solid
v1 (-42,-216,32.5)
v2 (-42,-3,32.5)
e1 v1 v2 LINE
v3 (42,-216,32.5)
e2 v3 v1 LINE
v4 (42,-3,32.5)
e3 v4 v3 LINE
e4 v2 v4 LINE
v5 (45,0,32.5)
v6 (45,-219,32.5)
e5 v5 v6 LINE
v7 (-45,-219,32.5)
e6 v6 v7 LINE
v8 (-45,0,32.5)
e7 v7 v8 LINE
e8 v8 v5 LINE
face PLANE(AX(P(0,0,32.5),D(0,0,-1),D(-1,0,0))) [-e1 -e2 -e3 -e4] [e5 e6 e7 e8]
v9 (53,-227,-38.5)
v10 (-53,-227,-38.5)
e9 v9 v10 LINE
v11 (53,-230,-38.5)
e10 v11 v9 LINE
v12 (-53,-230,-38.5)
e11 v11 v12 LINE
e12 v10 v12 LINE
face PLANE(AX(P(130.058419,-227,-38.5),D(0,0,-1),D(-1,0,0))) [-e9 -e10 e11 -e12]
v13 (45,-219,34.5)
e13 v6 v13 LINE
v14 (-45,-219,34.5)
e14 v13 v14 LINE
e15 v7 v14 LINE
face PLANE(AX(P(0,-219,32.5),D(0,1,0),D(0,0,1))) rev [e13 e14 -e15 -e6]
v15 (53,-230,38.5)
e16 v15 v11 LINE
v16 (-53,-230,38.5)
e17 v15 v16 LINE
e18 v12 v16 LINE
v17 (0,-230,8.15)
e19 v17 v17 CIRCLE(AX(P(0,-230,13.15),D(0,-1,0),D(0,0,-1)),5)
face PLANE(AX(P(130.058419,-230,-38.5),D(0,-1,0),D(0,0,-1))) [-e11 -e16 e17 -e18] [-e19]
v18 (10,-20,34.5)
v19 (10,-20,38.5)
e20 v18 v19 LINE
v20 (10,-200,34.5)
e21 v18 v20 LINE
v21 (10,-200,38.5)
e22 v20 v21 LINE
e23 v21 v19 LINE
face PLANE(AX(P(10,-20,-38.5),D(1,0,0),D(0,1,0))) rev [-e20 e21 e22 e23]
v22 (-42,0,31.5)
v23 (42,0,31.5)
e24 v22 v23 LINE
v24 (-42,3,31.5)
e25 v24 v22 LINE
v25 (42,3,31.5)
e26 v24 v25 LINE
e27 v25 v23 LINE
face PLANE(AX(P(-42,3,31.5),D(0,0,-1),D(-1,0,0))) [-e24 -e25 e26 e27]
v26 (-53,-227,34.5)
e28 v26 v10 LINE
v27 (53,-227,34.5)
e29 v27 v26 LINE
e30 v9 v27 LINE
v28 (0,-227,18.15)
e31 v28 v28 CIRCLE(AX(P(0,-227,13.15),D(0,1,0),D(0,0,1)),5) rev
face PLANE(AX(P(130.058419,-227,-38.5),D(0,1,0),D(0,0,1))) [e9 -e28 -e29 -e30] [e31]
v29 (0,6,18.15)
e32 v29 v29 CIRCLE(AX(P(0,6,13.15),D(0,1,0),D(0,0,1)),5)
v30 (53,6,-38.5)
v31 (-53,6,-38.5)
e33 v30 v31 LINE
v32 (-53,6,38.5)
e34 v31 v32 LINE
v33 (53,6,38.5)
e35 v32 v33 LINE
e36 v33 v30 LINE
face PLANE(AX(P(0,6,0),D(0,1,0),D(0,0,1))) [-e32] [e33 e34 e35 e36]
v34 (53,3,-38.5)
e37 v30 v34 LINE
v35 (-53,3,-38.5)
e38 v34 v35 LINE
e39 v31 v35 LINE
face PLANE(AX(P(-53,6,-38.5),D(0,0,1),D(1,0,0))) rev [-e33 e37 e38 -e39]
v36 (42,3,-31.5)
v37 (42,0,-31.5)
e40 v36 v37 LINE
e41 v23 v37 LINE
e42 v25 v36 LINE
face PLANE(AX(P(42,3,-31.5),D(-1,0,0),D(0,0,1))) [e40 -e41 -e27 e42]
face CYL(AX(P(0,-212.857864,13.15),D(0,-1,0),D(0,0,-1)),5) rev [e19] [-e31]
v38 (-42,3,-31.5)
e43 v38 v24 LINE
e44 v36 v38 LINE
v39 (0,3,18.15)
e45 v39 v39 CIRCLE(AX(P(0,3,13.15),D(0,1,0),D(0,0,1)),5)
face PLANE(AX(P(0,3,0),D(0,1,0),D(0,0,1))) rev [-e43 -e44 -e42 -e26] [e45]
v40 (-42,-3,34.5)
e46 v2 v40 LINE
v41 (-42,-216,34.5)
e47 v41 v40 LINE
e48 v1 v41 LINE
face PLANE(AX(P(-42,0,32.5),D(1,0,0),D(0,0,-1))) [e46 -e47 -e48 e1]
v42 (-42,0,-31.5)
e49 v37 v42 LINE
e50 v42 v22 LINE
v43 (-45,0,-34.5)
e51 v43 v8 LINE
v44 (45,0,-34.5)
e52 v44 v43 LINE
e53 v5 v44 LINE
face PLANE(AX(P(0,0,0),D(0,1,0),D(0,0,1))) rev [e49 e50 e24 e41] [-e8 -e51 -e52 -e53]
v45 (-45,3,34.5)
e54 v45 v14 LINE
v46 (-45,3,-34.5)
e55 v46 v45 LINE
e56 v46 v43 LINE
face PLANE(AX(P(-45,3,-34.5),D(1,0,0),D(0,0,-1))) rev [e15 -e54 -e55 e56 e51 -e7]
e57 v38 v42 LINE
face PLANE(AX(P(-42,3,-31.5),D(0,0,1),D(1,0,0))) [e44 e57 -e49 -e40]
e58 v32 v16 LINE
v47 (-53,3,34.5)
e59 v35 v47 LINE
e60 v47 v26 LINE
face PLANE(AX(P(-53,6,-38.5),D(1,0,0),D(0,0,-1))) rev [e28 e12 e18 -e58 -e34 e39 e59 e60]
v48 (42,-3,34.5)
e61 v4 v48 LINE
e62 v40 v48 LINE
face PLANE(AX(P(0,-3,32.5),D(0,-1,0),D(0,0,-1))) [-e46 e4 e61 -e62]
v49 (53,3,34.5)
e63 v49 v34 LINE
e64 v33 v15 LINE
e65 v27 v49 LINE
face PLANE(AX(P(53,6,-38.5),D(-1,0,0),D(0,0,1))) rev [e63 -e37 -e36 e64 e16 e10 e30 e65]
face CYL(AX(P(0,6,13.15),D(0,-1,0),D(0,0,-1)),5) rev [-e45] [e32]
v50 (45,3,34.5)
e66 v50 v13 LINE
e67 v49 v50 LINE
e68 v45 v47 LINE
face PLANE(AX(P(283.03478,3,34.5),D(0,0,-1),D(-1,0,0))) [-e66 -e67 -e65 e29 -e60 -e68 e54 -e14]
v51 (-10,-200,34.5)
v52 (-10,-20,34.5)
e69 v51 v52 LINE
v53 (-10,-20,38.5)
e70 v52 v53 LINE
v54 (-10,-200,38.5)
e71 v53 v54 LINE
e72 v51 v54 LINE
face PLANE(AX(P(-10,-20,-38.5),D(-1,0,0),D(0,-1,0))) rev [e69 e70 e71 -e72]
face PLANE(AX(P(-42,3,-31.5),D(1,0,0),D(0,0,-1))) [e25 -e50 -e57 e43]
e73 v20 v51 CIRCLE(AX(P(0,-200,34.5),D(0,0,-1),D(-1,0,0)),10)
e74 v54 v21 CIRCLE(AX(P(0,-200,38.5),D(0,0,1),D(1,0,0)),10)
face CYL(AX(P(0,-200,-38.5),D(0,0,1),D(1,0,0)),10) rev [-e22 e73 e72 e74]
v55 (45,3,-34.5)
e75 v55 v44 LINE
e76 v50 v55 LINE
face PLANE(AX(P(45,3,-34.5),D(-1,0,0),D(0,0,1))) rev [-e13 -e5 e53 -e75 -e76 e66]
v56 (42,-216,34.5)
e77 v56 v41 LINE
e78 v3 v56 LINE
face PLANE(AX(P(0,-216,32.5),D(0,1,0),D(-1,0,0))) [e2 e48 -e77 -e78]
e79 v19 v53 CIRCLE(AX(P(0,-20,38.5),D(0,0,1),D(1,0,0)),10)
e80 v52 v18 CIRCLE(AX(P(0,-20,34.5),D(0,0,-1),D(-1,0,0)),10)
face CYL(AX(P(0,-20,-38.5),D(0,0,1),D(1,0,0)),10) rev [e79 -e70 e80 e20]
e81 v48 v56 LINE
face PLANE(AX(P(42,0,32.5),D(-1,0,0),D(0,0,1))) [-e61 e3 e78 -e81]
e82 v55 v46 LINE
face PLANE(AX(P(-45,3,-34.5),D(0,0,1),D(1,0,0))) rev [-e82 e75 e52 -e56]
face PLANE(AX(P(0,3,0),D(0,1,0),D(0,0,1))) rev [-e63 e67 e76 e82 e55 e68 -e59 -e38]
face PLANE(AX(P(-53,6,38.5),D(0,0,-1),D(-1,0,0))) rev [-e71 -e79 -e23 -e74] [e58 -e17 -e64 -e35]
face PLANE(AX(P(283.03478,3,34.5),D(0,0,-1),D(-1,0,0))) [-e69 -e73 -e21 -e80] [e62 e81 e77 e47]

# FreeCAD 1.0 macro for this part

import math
import FreeCAD as App
import Part
import Sketcher
from FreeCAD import Vector

doc = App.newDocument("Part")
params = doc.addObject("Spreadsheet::Sheet", "Params")
for row, (alias, value) in enumerate([
    ("sketch1_width", "90 mm"),
    ("sketch1_width2", "84 mm"),
    ("sketch1_height", "69 mm"),
    ("sketch1_height2", "63 mm"),
    ("pad1_length", "3 mm"),
    ("sketch2_diameter", "10 mm"),
    ("sketch2_width", "106 mm"),
    ("sketch2_height", "77 mm"),
    ("pad2_length", "3 mm"),
    ("sketch3_width", "230 mm"),
    ("sketch3_height", "4 mm"),
    ("pad3_length", "106 mm"),
    ("sketch4_width", "90 mm"),
    ("sketch4_width2", "84 mm"),
    ("sketch4_height", "219 mm"),
    ("sketch4_height2", "213 mm"),
    ("pad4_length", "2 mm"),
    ("sketch5_width", "3 mm"),
    ("sketch5_height", "77 mm"),
    ("pad5_length", "106 mm"),
    ("sketch6_diameter", "10 mm"),
    ("pocket1_length", "3 mm"),
    ("sketch7_radius", "10 mm"),
    ("sketch7_height", "180 mm"),
], start=1):
    params.set(f"A{row}", alias)
    params.set(f"B{row}", "=" + value)
    params.setAlias(f"B{row}", alias)

body = doc.addObject("PartDesign::Body", "Body")

# Sketch on XZ plane
sketch1 = body.newObject("Sketcher::SketchObject", "Sketch")
sketch1.AttachmentSupport = (doc.getObject("XZ_Plane"), [""])
sketch1.MapMode = "FlatFace"
sketch1.addGeometry([
    Part.LineSegment(Vector(-45, -34.5, 0), Vector(-45, 34.5, 0)),  # 0
    Part.LineSegment(Vector(-45, 34.5, 0), Vector(45, 34.5, 0)),  # 1
    Part.LineSegment(Vector(45, 34.5, 0), Vector(45, -34.5, 0)),  # 2
    Part.LineSegment(Vector(45, -34.5, 0), Vector(-45, -34.5, 0)),  # 3
    Part.LineSegment(Vector(42, 31.5, 0), Vector(-42, 31.5, 0)),  # 4
    Part.LineSegment(Vector(-42, 31.5, 0), Vector(-42, -31.5, 0)),  # 5
    Part.LineSegment(Vector(-42, -31.5, 0), Vector(42, -31.5, 0)),  # 6
    Part.LineSegment(Vector(42, -31.5, 0), Vector(42, 31.5, 0)),  # 7
], False)
sketch1.addConstraint([
    Sketcher.Constraint("Coincident", 0, 2, 1, 1),
    Sketcher.Constraint("Coincident", 1, 2, 2, 1),
    Sketcher.Constraint("Coincident", 2, 2, 3, 1),
    Sketcher.Constraint("Coincident", 3, 2, 0, 1),
    Sketcher.Constraint("Coincident", 4, 2, 5, 1),
    Sketcher.Constraint("Coincident", 5, 2, 6, 1),
    Sketcher.Constraint("Coincident", 6, 2, 7, 1),
    Sketcher.Constraint("Coincident", 7, 2, 4, 1),
    Sketcher.Constraint("Vertical", 0),
    Sketcher.Constraint("Horizontal", 1),
    Sketcher.Constraint("Vertical", 2),
    Sketcher.Constraint("Horizontal", 3),
    Sketcher.Constraint("Horizontal", 4),
    Sketcher.Constraint("Vertical", 5),
    Sketcher.Constraint("Horizontal", 6),
    Sketcher.Constraint("Vertical", 7),
    Sketcher.Constraint("Symmetric", 0, 2, 2, 2, -1, 1),
    Sketcher.Constraint("Symmetric", 4, 2, 6, 2, -1, 1),
    Sketcher.Constraint("DistanceX", 1, 1, 1, 2, 90.0),
    Sketcher.Constraint("DistanceX", 4, 2, 4, 1, 84.0),
    Sketcher.Constraint("DistanceY", 0, 1, 0, 2, 69.0),
    Sketcher.Constraint("DistanceY", 5, 2, 5, 1, 63.0),
])
sketch1.setExpression("Constraints[18]", "Params.sketch1_width")
sketch1.setExpression("Constraints[19]", "Params.sketch1_width2")
sketch1.setExpression("Constraints[20]", "Params.sketch1_height")
sketch1.setExpression("Constraints[21]", "Params.sketch1_height2")
pad1 = body.newObject("PartDesign::Pad", "Pad")
pad1.Profile = sketch1
pad1.setExpression("Length", "Params.pad1_length")
pad1.Reversed = True

# Sketch on XZ plane
sketch2 = body.newObject("Sketcher::SketchObject", "Sketch001")
sketch2.AttachmentSupport = (doc.getObject("XZ_Plane"), [""])
sketch2.MapMode = "FlatFace"
sketch2.AttachmentOffset = App.Placement(Vector(0, 0, -3), App.Rotation())
sketch2.addGeometry([
    Part.LineSegment(Vector(-53, -38.5, 0), Vector(-53, 38.5, 0)),  # 0
    Part.LineSegment(Vector(-53, 38.5, 0), Vector(53, 38.5, 0)),  # 1
    Part.LineSegment(Vector(53, 38.5, 0), Vector(53, -38.5, 0)),  # 2
    Part.LineSegment(Vector(53, -38.5, 0), Vector(-53, -38.5, 0)),  # 3
    Part.Circle(Vector(0, 13.15, 0), Vector(0, 0, 1), 5),  # 4
], False)
sketch2.addConstraint([
    Sketcher.Constraint("Coincident", 0, 2, 1, 1),
    Sketcher.Constraint("Coincident", 1, 2, 2, 1),
    Sketcher.Constraint("Coincident", 2, 2, 3, 1),
    Sketcher.Constraint("Coincident", 3, 2, 0, 1),
    Sketcher.Constraint("Vertical", 0),
    Sketcher.Constraint("Horizontal", 1),
    Sketcher.Constraint("Vertical", 2),
    Sketcher.Constraint("Horizontal", 3),
    Sketcher.Constraint("Symmetric", 0, 2, 2, 2, -1, 1),
    Sketcher.Constraint("PointOnObject", 4, 3, -2),
    Sketcher.Constraint("Diameter", 4, 10.0),
    Sketcher.Constraint("DistanceX", 1, 1, 1, 2, 106.0),
    Sketcher.Constraint("DistanceY", 0, 1, 0, 2, 77.0),
    Sketcher.Constraint("DistanceY", -1, 1, 4, 3, 13.15),
])
sketch2.setExpression("Constraints[10]", "Params.sketch2_diameter")
sketch2.setExpression("Constraints[11]", "Params.sketch2_width")
sketch2.setExpression("Constraints[12]", "Params.sketch2_height")
pad2 = body.newObject("PartDesign::Pad", "Pad001")
pad2.Profile = sketch2
pad2.setExpression("Length", "Params.pad2_length")
pad2.Reversed = True

# Sketch on YZ plane
sketch3 = body.newObject("Sketcher::SketchObject", "Sketch002")
sketch3.AttachmentSupport = (doc.getObject("YZ_Plane"), [""])
sketch3.MapMode = "FlatFace"
sketch3.AttachmentOffset = App.Placement(Vector(0, 0, -53), App.Rotation())
sketch3.addGeometry([
    Part.LineSegment(Vector(3, 38.5, 0), Vector(3, 34.5, 0)),
    Part.LineSegment(Vector(3, 34.5, 0), Vector(-227, 34.5, 0)),
    Part.LineSegment(Vector(-227, 34.5, 0), Vector(-227, 38.5, 0)),
    Part.LineSegment(Vector(-227, 38.5, 0), Vector(3, 38.5, 0)),
], False)
sketch3.addConstraint([
    Sketcher.Constraint("Coincident", 0, 2, 1, 1),
    Sketcher.Constraint("Coincident", 1, 2, 2, 1),
    Sketcher.Constraint("Coincident", 2, 2, 3, 1),
    Sketcher.Constraint("Coincident", 3, 2, 0, 1),
    Sketcher.Constraint("Vertical", 0),
    Sketcher.Constraint("Horizontal", 1),
    Sketcher.Constraint("Vertical", 2),
    Sketcher.Constraint("Horizontal", 3),
    Sketcher.Constraint("DistanceX", 1, 2, 1, 1, 230.0),
    Sketcher.Constraint("DistanceY", 0, 2, 0, 1, 4.0),
    Sketcher.Constraint("DistanceX", -1, 1, 0, 2, 3.0),
    Sketcher.Constraint("DistanceY", -1, 1, 0, 2, 34.5),
])
sketch3.setExpression("Constraints[8]", "Params.sketch3_width")
sketch3.setExpression("Constraints[9]", "Params.sketch3_height")
pad3 = body.newObject("PartDesign::Pad", "Pad002")
pad3.Profile = sketch3
pad3.setExpression("Length", "Params.pad3_length")

# Sketch on XY plane
sketch4 = body.newObject("Sketcher::SketchObject", "Sketch003")
sketch4.AttachmentSupport = (doc.getObject("XY_Plane"), [""])
sketch4.MapMode = "FlatFace"
sketch4.AttachmentOffset = App.Placement(Vector(0, 0, 34.5), App.Rotation())
sketch4.addGeometry([
    Part.LineSegment(Vector(-45, -219, 0), Vector(-45, 0, 0)),  # 0
    Part.LineSegment(Vector(-45, 0, 0), Vector(45, 0, 0)),  # 1
    Part.LineSegment(Vector(45, 0, 0), Vector(45, -219, 0)),  # 2
    Part.LineSegment(Vector(45, -219, 0), Vector(-45, -219, 0)),  # 3
    Part.LineSegment(Vector(42, -3, 0), Vector(-42, -3, 0)),  # 4
    Part.LineSegment(Vector(-42, -3, 0), Vector(-42, -216, 0)),  # 5
    Part.LineSegment(Vector(-42, -216, 0), Vector(42, -216, 0)),  # 6
    Part.LineSegment(Vector(42, -216, 0), Vector(42, -3, 0)),  # 7
], False)
sketch4.addConstraint([
    Sketcher.Constraint("Coincident", 0, 2, 1, 1),
    Sketcher.Constraint("Coincident", 1, 2, 2, 1),
    Sketcher.Constraint("Coincident", 2, 2, 3, 1),
    Sketcher.Constraint("Coincident", 3, 2, 0, 1),
    Sketcher.Constraint("Coincident", 4, 2, 5, 1),
    Sketcher.Constraint("Coincident", 5, 2, 6, 1),
    Sketcher.Constraint("Coincident", 6, 2, 7, 1),
    Sketcher.Constraint("Coincident", 7, 2, 4, 1),
    Sketcher.Constraint("Vertical", 0),
    Sketcher.Constraint("Horizontal", 1),
    Sketcher.Constraint("Vertical", 2),
    Sketcher.Constraint("Horizontal", 3),
    Sketcher.Constraint("Horizontal", 4),
    Sketcher.Constraint("Vertical", 5),
    Sketcher.Constraint("Horizontal", 6),
    Sketcher.Constraint("Vertical", 7),
    Sketcher.Constraint("Symmetric", 0, 2, 1, 2, -1, 1),
    Sketcher.Constraint("DistanceX", 1, 1, 1, 2, 90.0),
    Sketcher.Constraint("DistanceX", 4, 2, 4, 1, 84.0),
    Sketcher.Constraint("DistanceY", 0, 1, 0, 2, 219.0),
    Sketcher.Constraint("DistanceY", 5, 2, 5, 1, 213.0),
    Sketcher.Constraint("DistanceX", 4, 2, -1, 1, 42.0),
    Sketcher.Constraint("DistanceY", 4, 2, -1, 1, 3.0),
])
sketch4.setExpression("Constraints[17]", "Params.sketch4_width")
sketch4.setExpression("Constraints[18]", "Params.sketch4_width2")
sketch4.setExpression("Constraints[19]", "Params.sketch4_height")
sketch4.setExpression("Constraints[20]", "Params.sketch4_height2")
pad4 = body.newObject("PartDesign::Pad", "Pad003")
pad4.Profile = sketch4
pad4.setExpression("Length", "Params.pad4_length")
pad4.Reversed = True

# Sketch on YZ plane
sketch5 = body.newObject("Sketcher::SketchObject", "Sketch004")
sketch5.AttachmentSupport = (doc.getObject("YZ_Plane"), [""])
sketch5.MapMode = "FlatFace"
sketch5.AttachmentOffset = App.Placement(Vector(0, 0, -53), App.Rotation())
sketch5.addGeometry([
    Part.LineSegment(Vector(-227, 38.5, 0), Vector(-227, -38.5, 0)),
    Part.LineSegment(Vector(-227, -38.5, 0), Vector(-230, -38.5, 0)),
    Part.LineSegment(Vector(-230, -38.5, 0), Vector(-230, 38.5, 0)),
    Part.LineSegment(Vector(-230, 38.5, 0), Vector(-227, 38.5, 0)),
], False)
sketch5.addConstraint([
    Sketcher.Constraint("Coincident", 0, 2, 1, 1),
    Sketcher.Constraint("Coincident", 1, 2, 2, 1),
    Sketcher.Constraint("Coincident", 2, 2, 3, 1),
    Sketcher.Constraint("Coincident", 3, 2, 0, 1),
    Sketcher.Constraint("Vertical", 0),
    Sketcher.Constraint("Horizontal", 1),
    Sketcher.Constraint("Vertical", 2),
    Sketcher.Constraint("Horizontal", 3),
    Sketcher.Constraint("DistanceX", 1, 2, 1, 1, 3.0),
    Sketcher.Constraint("DistanceY", 0, 2, 0, 1, 77.0),
    Sketcher.Constraint("DistanceX", 0, 2, -1, 1, 227.0),
    Sketcher.Constraint("DistanceY", 0, 2, -1, 1, 38.5),
])
sketch5.setExpression("Constraints[8]", "Params.sketch5_width")
sketch5.setExpression("Constraints[9]", "Params.sketch5_height")
pad5 = body.newObject("PartDesign::Pad", "Pad004")
pad5.Profile = sketch5
pad5.setExpression("Length", "Params.pad5_length")

# Sketch on XZ plane
sketch6 = body.newObject("Sketcher::SketchObject", "Sketch005")
sketch6.AttachmentSupport = (doc.getObject("XZ_Plane"), [""])
sketch6.MapMode = "FlatFace"
sketch6.AttachmentOffset = App.Placement(Vector(0, 0, 230), App.Rotation())
sketch6.addGeometry(Part.Circle(Vector(0, 13.15, 0), Vector(0, 0, 1), 5), False)
sketch6.addConstraint([
    Sketcher.Constraint("PointOnObject", 0, 3, -2),
    Sketcher.Constraint("Diameter", 0, 10.0),
    Sketcher.Constraint("DistanceY", -1, 1, 0, 3, 13.15),
])
sketch6.setExpression("Constraints[1]", "Params.sketch6_diameter")
pocket1 = body.newObject("PartDesign::Pocket", "Pocket")
pocket1.Profile = sketch6
pocket1.setExpression("Length", "Params.pocket1_length")

# Sketch on XY plane
sketch7 = body.newObject("Sketcher::SketchObject", "Sketch006")
sketch7.AttachmentSupport = (doc.getObject("XY_Plane"), [""])
sketch7.MapMode = "FlatFace"
sketch7.AttachmentOffset = App.Placement(Vector(0, 0, 38.5), App.Rotation())
sketch7.addGeometry([
    Part.LineSegment(Vector(10, -200, 0), Vector(10, -20, 0)),
    Part.ArcOfCircle(Part.Circle(Vector(0, -20, 0), Vector(0, 0, 1), 10), math.radians(0), math.radians(180)),
    Part.LineSegment(Vector(-10, -20, 0), Vector(-10, -200, 0)),
    Part.ArcOfCircle(Part.Circle(Vector(0, -200, 0), Vector(0, 0, 1), 10), math.radians(180), math.radians(360)),
], False)
sketch7.addConstraint([
    Sketcher.Constraint("Tangent", 0, 2, 1, 1),
    Sketcher.Constraint("Tangent", 1, 2, 2, 1),
    Sketcher.Constraint("Tangent", 2, 2, 3, 1),
    Sketcher.Constraint("Tangent", 3, 2, 0, 1),
    Sketcher.Constraint("Vertical", 0),
    Sketcher.Constraint("Vertical", 2),
    Sketcher.Constraint("PointOnObject", 1, 3, -2),
    Sketcher.Constraint("Radius", 1, 10.0),
    Sketcher.Constraint("DistanceY", 0, 1, 0, 2, 180.0),
    Sketcher.Constraint("DistanceY", 1, 3, -1, 1, 20.0),
])
sketch7.setExpression("Constraints[7]", "Params.sketch7_radius")
sketch7.setExpression("Constraints[8]", "Params.sketch7_height")
pocket2 = body.newObject("PartDesign::Pocket", "Pocket001")
pocket2.Profile = sketch7
pocket2.Type = "ThroughAll"

doc.recompute()
